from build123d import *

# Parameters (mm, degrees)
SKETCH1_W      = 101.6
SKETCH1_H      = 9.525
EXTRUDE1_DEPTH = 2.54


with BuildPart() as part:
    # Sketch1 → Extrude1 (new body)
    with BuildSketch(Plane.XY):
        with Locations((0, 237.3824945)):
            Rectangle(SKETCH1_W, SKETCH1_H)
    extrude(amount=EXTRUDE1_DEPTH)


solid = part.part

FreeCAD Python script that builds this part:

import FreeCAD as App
import Part
import Sketcher
from FreeCAD import Vector
Q = App.Units.Quantity


def add_polygon(sketch, points):
    """Adds a closed chain of lines whose ends are joined by coincident constraints."""
    first, n = sketch.GeometryCount, len(points)
    for a, b in zip(points, points[1:] + points[:1]):
        sketch.addGeometry(Part.LineSegment(App.Vector(*a, 0), App.Vector(*b, 0)), False)
    for i in range(n):
        sketch.addConstraint(Sketcher.Constraint("Coincident", first + i, 2, first + (i + 1) % n, 1))

doc = App.newDocument("Part")
params = doc.addObject("Spreadsheet::Sheet", "Params")
for row, (alias, value) in enumerate([
    ("sketch1_width", "4 in"),
    ("sketch1_height", "0.375 in"),
    ("pad1_length", "0.1 in"),
], start=1):
    params.set(f"A{row}", alias)
    params.set(f"B{row}", "=" + value)
    params.setAlias(f"B{row}", alias)

body = doc.addObject("PartDesign::Body", "Body")

# Sketch on XY plane
sketch1 = doc.addObject("Sketcher::SketchObject", "Sketch")
body.addObject(sketch1)
sketch1.AttachmentSupport = (doc.XY_Plane, [""])
sketch1.MapMode = "FlatFace"
add_polygon(sketch1, [(-51, 242), (-51, 233), (51, 233), (51, 242)])  # lines 0-3
sketch1.addConstraint([
    Sketcher.Constraint("Vertical", 0),
    Sketcher.Constraint("Horizontal", 1),
    Sketcher.Constraint("Vertical", 2),
    Sketcher.Constraint("Horizontal", 3),
    Sketcher.Constraint("DistanceX", 1, 1, 1, 2, Q("4 in")),
    Sketcher.Constraint("DistanceX", 0, 2, -1, 1, Q("2 in")),
    Sketcher.Constraint("DistanceY", 0, 2, 0, 1, Q("0.375 in")),
    Sketcher.Constraint("DistanceY", -1, 1, 0, 2, Q("232.619994 mm")),
])
sketch1.setExpression("Constraints[8]", "Params.sketch1_width")
sketch1.setExpression("Constraints[10]", "Params.sketch1_height")
pad1 = doc.addObject("PartDesign::Pad", "Pad")
body.addObject(pad1)
pad1.Profile = sketch1
pad1.setExpression("Length", "Params.pad1_length")

doc.recompute()
